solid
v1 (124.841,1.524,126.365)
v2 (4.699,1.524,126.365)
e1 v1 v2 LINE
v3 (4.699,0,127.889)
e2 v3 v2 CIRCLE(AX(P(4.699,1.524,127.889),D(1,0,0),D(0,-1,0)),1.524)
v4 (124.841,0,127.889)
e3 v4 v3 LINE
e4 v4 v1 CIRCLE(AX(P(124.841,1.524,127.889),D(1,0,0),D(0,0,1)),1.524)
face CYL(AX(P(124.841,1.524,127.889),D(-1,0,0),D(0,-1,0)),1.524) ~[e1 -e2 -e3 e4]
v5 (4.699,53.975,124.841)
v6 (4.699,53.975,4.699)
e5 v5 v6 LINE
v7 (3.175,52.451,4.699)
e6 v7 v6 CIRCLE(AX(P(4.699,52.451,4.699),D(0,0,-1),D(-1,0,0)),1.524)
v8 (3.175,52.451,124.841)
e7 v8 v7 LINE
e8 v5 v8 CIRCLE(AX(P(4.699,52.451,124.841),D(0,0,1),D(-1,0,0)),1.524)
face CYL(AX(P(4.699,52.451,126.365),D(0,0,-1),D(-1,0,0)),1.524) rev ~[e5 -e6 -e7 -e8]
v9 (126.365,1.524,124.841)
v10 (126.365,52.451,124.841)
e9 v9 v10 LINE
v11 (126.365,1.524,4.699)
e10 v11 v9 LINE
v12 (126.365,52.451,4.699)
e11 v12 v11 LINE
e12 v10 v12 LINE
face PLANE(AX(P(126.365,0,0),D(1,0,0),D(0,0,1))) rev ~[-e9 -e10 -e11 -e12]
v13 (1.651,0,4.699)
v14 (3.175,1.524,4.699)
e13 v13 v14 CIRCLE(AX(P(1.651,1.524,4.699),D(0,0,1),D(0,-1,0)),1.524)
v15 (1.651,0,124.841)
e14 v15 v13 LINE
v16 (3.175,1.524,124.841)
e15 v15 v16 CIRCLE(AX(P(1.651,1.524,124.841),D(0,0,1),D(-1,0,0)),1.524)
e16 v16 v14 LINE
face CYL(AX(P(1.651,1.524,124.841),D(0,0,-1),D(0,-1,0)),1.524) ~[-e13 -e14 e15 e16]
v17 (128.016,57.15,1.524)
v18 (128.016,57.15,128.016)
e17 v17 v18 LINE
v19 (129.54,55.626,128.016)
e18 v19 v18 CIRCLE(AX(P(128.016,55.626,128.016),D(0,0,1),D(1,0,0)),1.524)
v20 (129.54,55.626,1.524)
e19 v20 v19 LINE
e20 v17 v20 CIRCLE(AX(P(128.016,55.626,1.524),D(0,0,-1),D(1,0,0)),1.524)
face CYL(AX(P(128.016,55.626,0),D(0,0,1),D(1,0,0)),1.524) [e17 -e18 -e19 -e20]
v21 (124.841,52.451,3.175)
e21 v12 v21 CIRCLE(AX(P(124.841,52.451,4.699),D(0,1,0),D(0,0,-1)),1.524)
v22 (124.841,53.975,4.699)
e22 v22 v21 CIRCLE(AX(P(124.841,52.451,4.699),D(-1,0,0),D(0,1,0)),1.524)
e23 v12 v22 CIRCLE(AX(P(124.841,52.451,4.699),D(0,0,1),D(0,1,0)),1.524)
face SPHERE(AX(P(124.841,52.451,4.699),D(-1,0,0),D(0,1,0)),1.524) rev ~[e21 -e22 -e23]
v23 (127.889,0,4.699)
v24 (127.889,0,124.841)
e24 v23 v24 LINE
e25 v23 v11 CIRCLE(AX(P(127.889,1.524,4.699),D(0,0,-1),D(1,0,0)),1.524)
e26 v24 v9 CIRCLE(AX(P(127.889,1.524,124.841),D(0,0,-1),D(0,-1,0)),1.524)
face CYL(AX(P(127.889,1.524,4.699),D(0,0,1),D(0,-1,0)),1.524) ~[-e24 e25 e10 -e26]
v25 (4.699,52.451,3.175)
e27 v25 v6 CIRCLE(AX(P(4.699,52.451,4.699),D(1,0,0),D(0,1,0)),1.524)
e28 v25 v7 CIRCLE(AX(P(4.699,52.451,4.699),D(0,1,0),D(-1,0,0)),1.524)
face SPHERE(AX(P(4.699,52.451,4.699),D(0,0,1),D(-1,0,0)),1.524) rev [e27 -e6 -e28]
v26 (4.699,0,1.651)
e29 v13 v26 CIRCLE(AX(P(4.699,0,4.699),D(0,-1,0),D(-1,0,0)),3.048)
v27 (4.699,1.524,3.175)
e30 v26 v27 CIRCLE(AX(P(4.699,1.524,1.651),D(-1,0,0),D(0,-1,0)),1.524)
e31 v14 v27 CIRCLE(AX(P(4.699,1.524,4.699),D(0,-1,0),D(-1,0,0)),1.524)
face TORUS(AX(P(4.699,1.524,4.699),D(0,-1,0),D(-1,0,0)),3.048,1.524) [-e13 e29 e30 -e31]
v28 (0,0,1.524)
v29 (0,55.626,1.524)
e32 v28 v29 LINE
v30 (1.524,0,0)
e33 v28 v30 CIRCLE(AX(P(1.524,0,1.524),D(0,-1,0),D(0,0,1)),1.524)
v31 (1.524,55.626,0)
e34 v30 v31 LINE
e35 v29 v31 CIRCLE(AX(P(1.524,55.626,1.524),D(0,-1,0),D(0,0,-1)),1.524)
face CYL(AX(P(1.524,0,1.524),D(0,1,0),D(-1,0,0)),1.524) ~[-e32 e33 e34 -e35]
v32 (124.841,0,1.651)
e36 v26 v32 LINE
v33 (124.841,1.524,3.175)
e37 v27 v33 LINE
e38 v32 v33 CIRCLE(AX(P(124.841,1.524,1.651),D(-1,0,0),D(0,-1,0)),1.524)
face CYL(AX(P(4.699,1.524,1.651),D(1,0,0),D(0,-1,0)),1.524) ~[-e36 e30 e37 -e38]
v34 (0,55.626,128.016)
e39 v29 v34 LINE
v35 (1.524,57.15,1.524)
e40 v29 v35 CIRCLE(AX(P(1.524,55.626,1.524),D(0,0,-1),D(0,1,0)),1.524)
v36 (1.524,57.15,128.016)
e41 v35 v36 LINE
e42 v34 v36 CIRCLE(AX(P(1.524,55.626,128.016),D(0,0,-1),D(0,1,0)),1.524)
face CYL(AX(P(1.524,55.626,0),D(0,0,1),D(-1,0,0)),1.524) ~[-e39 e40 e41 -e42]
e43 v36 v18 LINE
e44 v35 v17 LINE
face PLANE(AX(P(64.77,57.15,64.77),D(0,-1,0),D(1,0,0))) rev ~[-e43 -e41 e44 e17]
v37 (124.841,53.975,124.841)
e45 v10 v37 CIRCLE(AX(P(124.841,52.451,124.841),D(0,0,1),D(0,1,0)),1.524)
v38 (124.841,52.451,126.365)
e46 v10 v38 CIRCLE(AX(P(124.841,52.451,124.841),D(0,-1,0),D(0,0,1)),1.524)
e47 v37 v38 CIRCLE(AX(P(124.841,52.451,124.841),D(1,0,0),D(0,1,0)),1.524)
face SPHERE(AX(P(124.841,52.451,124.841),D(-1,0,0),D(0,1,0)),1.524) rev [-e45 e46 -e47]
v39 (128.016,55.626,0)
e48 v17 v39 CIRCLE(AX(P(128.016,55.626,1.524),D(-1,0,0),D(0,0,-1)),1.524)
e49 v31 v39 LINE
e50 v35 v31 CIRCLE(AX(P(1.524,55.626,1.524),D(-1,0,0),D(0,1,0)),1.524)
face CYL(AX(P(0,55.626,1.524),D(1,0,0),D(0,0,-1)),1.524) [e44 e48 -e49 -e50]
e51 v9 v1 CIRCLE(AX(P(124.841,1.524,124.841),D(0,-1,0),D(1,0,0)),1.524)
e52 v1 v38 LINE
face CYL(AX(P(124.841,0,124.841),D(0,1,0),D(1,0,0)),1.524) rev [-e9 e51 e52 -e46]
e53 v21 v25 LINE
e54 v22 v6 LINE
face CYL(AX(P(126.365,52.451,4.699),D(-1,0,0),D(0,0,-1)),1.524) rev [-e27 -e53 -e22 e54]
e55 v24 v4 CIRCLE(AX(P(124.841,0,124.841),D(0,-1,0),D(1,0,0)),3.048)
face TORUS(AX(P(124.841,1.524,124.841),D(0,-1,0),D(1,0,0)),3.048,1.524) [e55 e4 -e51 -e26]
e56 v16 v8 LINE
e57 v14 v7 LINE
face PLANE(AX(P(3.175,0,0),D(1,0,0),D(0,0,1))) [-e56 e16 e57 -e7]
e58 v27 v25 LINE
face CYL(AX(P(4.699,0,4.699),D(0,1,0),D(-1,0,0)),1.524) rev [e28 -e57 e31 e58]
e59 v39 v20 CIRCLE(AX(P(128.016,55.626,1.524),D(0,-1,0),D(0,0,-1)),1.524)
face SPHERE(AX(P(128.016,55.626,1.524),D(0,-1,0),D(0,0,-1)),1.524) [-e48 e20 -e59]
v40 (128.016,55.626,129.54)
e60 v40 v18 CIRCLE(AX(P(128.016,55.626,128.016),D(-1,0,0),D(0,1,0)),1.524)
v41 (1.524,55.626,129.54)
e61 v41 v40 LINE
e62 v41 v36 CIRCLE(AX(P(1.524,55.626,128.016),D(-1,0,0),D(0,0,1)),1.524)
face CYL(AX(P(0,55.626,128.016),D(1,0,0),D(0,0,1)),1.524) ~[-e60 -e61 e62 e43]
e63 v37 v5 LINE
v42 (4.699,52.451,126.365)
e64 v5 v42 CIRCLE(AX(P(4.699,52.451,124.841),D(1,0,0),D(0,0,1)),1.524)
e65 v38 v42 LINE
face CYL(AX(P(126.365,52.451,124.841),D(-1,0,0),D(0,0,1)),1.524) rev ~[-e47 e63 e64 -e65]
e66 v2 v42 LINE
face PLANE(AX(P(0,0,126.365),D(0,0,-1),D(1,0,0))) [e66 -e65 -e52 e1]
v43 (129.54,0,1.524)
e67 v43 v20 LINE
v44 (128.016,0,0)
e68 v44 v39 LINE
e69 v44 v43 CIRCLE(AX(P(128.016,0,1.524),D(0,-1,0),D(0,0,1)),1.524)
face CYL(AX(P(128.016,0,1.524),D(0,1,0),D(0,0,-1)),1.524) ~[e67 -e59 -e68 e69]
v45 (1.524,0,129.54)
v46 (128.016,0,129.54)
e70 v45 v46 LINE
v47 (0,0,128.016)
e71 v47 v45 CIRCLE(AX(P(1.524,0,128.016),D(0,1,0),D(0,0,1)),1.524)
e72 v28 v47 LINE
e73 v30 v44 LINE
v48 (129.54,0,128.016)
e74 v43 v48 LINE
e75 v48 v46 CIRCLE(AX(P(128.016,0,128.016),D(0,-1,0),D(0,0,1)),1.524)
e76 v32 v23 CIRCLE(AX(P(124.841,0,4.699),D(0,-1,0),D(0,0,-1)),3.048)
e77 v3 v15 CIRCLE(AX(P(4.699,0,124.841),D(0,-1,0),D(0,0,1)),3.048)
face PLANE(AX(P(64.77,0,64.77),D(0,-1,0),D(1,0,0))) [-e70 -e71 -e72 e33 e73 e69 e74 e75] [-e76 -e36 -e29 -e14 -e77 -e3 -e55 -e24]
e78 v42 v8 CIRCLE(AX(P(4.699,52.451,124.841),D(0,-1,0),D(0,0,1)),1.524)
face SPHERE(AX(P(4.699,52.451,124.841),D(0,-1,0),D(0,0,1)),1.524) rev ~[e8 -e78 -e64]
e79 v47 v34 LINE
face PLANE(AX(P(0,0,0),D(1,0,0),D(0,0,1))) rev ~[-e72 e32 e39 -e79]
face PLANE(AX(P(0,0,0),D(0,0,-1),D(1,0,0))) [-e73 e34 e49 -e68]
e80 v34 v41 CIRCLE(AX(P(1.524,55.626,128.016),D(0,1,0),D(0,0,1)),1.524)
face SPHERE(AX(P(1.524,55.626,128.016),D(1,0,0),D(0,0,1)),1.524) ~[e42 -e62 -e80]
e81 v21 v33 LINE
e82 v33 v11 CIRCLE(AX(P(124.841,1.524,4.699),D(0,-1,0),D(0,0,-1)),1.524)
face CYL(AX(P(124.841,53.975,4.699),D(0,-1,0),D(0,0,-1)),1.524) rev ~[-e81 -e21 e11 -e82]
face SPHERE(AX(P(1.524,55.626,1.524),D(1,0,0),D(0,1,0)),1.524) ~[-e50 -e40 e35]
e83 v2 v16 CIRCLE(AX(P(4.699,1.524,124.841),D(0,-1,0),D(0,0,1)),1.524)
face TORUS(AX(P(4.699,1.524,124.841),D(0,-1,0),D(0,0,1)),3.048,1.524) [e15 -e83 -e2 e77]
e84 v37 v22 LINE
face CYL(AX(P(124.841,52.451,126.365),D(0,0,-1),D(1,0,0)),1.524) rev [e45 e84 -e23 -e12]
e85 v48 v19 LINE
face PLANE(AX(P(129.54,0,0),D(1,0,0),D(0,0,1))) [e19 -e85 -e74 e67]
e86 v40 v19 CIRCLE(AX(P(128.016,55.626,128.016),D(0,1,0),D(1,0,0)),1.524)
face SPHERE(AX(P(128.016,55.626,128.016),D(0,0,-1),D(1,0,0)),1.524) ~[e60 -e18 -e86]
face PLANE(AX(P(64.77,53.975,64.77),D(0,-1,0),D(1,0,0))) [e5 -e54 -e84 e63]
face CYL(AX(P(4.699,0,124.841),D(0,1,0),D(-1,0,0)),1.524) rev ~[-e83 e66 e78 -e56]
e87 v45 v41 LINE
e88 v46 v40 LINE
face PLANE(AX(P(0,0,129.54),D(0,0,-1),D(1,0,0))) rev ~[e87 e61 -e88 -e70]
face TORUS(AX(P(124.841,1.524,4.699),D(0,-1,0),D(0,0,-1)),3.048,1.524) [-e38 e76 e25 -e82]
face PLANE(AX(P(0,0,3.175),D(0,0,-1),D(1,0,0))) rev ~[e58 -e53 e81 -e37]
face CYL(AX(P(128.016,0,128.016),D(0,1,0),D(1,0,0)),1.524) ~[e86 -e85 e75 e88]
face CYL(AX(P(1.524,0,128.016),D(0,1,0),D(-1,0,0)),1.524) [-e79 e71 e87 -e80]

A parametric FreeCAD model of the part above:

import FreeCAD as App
import Part
import Sketcher
Q = App.Units.Quantity


def edges_at(feature, points):
    """Names of the edges that pass closest to the given points."""
    edges = feature.Shape.Edges
    near = lambda p: min(range(len(edges)), key=lambda i: edges[i].distToShape(Part.Vertex(*p))[0])
    return sorted({f"Edge{near(p) + 1}" for p in points})


def faces_at(feature, points):
    """Names of the faces that lie closest to the given points."""
    faces = feature.Shape.Faces
    near = lambda p: min(range(len(faces)), key=lambda i: faces[i].distToShape(Part.Vertex(*p))[0])
    return sorted({f"Face{near(p) + 1}" for p in points})


def add_polygon(sketch, points):
    """Adds a closed chain of lines whose ends are joined by coincident constraints."""
    first, n = sketch.GeometryCount, len(points)
    for a, b in zip(points, points[1:] + points[:1]):
        sketch.addGeometry(Part.LineSegment(App.Vector(*a, 0), App.Vector(*b, 0)), False)
    for i in range(n):
        sketch.addConstraint(Sketcher.Constraint("Coincident", first + i, 2, first + (i + 1) % n, 1))

doc = App.newDocument("Part")
body = doc.addObject("PartDesign::Body", "Body")

sketch1 = body.newObject("Sketcher::SketchObject", "Sketch")
sketch1.AttachmentSupport = (doc.getObject("XZ_Plane"), [""])
sketch1.MapMode = "FlatFace"
add_polygon(sketch1, [(0, 129.54), (0, 0), (129.54, 0), (129.54, 129.54)])
sketch1.addConstraint([
    Sketcher.Constraint("Vertical", 0),
    Sketcher.Constraint("Horizontal", 1),
    Sketcher.Constraint("Vertical", 2),
    Sketcher.Constraint("Horizontal", 3),
    Sketcher.Constraint("Coincident", 0, 2, -1, 1),
    Sketcher.Constraint("Equal", 3, 0),
    Sketcher.Constraint("DistanceX", 1, 1, 1, 2, Q("5.1 in")),
])
pad1 = body.newObject("PartDesign::Pad", "Pad")
pad1.Profile = sketch1
pad1.Length = Q("2.25 in")
pad1.Reversed = True
doc.recompute()

thickness = body.newObject("PartDesign::Thickness", "Thickness")
thickness.Base = (pad1, faces_at(pad1, [(64.77, 0, 64.77)]))
thickness.Value = Q("0.125 in")
thickness.Reversed = True
thickness.Join = "Arc"
doc.recompute()

fillet = body.newObject("PartDesign::Fillet", "Fillet")
fillet.Base = (thickness, edges_at(thickness, [
    (3.175, 26.988, 126.365),
    (64.77, 53.975, 126.365),
    (3.175, 53.975, 64.77),
    (3.175, 26.988, 3.175),
    (64.77, 53.975, 3.175),
    (126.365, 53.975, 64.77),
    (126.365, 26.988, 126.365),
    (126.365, 26.988, 3.175),
]))
fillet.Radius = Q("0.06 in")
doc.recompute()

fillet2 = body.newObject("PartDesign::Fillet", "Fillet001")
fillet2.Base = (fillet, edges_at(fillet, [
    (129.54, 28.575, 0),
    (64.77, 57.15, 0),
    (129.54, 57.15, 64.77),
    (129.54, 28.575, 129.54),
    (64.77, 57.15, 129.54),
    (0, 28.575, 129.54),
    (0, 57.15, 64.77),
    (0, 28.575, 0),
]))
fillet2.Radius = Q("0.06 in")
doc.recompute()

fillet3 = body.newObject("PartDesign::Fillet", "Fillet002")
fillet3.Base = (fillet2, edges_at(fillet2, [(64.77, 0, 3.175)]))
fillet3.Radius = Q("0.06 in")

doc.recompute()
